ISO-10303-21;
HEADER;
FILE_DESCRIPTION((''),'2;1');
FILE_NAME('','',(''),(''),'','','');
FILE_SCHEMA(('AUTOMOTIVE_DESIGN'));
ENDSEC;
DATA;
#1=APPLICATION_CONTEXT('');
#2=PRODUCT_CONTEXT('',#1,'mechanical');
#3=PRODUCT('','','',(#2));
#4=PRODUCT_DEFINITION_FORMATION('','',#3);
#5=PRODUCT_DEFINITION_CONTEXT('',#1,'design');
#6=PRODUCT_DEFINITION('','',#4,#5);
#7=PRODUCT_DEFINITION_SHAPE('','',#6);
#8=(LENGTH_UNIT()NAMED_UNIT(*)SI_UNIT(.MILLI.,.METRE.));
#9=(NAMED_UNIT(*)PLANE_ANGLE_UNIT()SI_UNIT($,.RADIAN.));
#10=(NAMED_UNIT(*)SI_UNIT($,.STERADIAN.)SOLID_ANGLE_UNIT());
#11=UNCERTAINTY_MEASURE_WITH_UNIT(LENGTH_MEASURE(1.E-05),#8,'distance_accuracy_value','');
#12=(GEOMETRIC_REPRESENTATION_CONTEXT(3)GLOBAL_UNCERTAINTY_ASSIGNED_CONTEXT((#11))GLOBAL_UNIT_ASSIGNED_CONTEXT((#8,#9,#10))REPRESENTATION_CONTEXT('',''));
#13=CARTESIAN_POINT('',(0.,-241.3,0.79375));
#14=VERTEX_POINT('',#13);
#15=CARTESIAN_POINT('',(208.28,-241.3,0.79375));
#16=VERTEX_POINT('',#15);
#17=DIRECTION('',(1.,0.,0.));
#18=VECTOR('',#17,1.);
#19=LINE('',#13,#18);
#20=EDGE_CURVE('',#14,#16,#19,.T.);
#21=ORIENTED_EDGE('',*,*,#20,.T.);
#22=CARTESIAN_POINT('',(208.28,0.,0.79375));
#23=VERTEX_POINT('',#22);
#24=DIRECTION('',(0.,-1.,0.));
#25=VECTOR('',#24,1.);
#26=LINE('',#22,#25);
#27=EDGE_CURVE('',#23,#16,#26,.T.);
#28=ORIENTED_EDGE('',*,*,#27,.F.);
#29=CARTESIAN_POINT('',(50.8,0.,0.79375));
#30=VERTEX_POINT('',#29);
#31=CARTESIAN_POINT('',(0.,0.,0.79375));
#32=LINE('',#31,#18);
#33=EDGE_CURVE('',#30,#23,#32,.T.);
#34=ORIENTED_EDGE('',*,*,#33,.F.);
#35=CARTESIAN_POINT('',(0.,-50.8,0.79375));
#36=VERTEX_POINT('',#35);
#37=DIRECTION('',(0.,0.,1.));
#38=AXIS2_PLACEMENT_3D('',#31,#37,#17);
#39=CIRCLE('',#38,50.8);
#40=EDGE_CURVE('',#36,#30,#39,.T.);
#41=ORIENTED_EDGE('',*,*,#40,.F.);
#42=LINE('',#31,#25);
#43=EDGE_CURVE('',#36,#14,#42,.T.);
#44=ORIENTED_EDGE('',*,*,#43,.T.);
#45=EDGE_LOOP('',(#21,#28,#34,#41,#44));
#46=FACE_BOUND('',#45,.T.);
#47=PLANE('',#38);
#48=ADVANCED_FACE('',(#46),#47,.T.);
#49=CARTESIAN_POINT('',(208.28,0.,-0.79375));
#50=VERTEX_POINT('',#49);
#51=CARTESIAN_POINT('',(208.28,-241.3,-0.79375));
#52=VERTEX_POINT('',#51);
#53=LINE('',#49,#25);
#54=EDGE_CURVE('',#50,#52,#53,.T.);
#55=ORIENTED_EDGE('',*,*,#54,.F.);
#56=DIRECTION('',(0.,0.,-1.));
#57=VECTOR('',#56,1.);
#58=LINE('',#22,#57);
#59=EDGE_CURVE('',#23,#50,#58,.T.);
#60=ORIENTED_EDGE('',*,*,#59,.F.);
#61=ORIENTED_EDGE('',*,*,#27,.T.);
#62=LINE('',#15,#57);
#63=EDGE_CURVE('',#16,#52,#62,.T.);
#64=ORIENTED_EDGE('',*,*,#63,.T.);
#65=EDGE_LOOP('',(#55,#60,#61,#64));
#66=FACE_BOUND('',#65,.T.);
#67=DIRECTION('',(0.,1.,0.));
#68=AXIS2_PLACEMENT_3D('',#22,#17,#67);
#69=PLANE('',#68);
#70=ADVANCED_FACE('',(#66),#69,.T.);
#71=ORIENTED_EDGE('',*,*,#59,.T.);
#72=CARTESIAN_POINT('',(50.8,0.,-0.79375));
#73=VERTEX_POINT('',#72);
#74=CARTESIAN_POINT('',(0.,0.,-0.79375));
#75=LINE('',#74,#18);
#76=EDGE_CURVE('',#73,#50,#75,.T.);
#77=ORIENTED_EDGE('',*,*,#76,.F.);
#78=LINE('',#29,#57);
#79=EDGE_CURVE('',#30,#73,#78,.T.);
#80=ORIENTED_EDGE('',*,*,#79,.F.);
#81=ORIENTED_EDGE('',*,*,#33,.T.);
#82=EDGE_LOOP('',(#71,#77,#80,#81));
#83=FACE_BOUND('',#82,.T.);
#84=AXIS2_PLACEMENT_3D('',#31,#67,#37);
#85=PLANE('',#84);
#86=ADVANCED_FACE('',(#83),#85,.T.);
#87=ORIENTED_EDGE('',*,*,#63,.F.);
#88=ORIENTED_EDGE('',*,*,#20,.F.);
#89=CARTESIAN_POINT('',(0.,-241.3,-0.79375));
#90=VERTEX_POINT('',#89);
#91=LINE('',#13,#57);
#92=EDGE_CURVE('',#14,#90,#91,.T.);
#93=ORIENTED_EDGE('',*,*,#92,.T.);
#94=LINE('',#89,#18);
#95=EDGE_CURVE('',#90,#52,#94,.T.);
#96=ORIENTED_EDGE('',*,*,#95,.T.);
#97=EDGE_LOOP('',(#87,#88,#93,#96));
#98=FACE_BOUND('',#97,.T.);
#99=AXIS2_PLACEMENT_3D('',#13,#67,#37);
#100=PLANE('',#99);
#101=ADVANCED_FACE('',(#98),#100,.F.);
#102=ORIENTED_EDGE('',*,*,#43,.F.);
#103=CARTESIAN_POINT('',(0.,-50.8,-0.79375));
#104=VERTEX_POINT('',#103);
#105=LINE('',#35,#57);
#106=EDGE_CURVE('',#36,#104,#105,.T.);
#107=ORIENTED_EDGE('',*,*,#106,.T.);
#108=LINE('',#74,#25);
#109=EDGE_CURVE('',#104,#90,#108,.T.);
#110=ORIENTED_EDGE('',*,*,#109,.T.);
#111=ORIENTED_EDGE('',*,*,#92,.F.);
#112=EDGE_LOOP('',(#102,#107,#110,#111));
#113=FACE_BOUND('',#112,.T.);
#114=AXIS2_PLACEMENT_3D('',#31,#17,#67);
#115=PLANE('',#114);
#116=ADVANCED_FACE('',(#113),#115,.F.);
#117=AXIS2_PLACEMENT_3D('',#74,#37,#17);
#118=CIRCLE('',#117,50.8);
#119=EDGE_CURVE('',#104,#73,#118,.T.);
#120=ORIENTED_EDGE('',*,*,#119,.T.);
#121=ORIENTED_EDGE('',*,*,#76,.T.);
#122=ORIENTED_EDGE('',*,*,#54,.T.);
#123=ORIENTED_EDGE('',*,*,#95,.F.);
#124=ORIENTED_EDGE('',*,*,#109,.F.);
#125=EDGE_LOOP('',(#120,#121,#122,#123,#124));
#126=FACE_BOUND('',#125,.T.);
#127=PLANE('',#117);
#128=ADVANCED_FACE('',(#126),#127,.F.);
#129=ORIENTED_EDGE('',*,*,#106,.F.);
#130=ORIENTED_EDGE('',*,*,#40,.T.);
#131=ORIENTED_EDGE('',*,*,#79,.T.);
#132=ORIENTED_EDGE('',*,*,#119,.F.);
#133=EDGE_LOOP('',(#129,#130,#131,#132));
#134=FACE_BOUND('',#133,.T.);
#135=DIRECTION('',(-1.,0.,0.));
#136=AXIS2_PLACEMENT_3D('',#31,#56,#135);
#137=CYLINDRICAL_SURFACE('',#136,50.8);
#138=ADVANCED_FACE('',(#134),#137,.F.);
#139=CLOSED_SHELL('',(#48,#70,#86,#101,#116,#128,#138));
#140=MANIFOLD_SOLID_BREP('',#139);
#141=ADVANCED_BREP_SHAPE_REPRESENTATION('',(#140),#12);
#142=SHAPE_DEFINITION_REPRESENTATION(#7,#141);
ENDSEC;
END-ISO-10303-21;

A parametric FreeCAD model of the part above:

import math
import FreeCAD as App
import Part
import Sketcher

V = App.Vector
Q = App.Units.Quantity

doc = App.newDocument("Part")
body = doc.addObject("PartDesign::Body", "Body")

# Sketch on XY plane
sketch1 = body.newObject("Sketcher::SketchObject", "Sketch")
sketch1.AttachmentSupport = (doc.getObject("XY_Plane"), [""])
sketch1.MapMode = "FlatFace"
sketch1.addGeometry(Part.ArcOfCircle(Part.Circle(V(0, 0, 0), V(0, 0, 1), 50.8), math.radians(-90), math.radians(0)), False)
sketch1.addGeometry(Part.LineSegment(V(0, -50.8, 0), V(0, -241.3, 0)), False)
sketch1.addGeometry(Part.LineSegment(V(0, -241.3, 0), V(208.28, -241.3, 0)), False)
sketch1.addGeometry(Part.LineSegment(V(208.28, -241.3, 0), V(208.28, 0, 0)), False)
sketch1.addGeometry(Part.LineSegment(V(208.28, 0, 0), V(50.8, 0, 0)), False)
sketch1.addConstraint(Sketcher.Constraint("Coincident", 0, 1, 1, 1))
sketch1.addConstraint(Sketcher.Constraint("Coincident", 1, 2, 2, 1))
sketch1.addConstraint(Sketcher.Constraint("Coincident", 2, 2, 3, 1))
sketch1.addConstraint(Sketcher.Constraint("Coincident", 3, 2, 4, 1))
sketch1.addConstraint(Sketcher.Constraint("Coincident", 4, 2, 0, 2))
sketch1.addConstraint(Sketcher.Constraint("Vertical", 1))
sketch1.addConstraint(Sketcher.Constraint("Horizontal", 2))
sketch1.addConstraint(Sketcher.Constraint("Vertical", 3))
sketch1.addConstraint(Sketcher.Constraint("Horizontal", 4))
sketch1.addConstraint(Sketcher.Constraint("Coincident", 0, 3, -1, 1))
sketch1.addConstraint(Sketcher.Constraint("PointOnObject", 0, 1, -2))
sketch1.addConstraint(Sketcher.Constraint("PointOnObject", 3, 2, -1))
sketch1.addConstraint(Sketcher.Constraint("Radius", 0, Q("2 in")))
sketch1.addConstraint(Sketcher.Constraint("DistanceX", 2, 1, 2, 2, Q("8.2 in")))
sketch1.addConstraint(Sketcher.Constraint("DistanceY", 1, 2, 1, 1, Q("7.5 in")))
pad1 = body.newObject("PartDesign::Pad", "Pad")
pad1.Profile = sketch1
pad1.Length = Q("0.0625 in")
pad1.Midplane = True

doc.recompute()
